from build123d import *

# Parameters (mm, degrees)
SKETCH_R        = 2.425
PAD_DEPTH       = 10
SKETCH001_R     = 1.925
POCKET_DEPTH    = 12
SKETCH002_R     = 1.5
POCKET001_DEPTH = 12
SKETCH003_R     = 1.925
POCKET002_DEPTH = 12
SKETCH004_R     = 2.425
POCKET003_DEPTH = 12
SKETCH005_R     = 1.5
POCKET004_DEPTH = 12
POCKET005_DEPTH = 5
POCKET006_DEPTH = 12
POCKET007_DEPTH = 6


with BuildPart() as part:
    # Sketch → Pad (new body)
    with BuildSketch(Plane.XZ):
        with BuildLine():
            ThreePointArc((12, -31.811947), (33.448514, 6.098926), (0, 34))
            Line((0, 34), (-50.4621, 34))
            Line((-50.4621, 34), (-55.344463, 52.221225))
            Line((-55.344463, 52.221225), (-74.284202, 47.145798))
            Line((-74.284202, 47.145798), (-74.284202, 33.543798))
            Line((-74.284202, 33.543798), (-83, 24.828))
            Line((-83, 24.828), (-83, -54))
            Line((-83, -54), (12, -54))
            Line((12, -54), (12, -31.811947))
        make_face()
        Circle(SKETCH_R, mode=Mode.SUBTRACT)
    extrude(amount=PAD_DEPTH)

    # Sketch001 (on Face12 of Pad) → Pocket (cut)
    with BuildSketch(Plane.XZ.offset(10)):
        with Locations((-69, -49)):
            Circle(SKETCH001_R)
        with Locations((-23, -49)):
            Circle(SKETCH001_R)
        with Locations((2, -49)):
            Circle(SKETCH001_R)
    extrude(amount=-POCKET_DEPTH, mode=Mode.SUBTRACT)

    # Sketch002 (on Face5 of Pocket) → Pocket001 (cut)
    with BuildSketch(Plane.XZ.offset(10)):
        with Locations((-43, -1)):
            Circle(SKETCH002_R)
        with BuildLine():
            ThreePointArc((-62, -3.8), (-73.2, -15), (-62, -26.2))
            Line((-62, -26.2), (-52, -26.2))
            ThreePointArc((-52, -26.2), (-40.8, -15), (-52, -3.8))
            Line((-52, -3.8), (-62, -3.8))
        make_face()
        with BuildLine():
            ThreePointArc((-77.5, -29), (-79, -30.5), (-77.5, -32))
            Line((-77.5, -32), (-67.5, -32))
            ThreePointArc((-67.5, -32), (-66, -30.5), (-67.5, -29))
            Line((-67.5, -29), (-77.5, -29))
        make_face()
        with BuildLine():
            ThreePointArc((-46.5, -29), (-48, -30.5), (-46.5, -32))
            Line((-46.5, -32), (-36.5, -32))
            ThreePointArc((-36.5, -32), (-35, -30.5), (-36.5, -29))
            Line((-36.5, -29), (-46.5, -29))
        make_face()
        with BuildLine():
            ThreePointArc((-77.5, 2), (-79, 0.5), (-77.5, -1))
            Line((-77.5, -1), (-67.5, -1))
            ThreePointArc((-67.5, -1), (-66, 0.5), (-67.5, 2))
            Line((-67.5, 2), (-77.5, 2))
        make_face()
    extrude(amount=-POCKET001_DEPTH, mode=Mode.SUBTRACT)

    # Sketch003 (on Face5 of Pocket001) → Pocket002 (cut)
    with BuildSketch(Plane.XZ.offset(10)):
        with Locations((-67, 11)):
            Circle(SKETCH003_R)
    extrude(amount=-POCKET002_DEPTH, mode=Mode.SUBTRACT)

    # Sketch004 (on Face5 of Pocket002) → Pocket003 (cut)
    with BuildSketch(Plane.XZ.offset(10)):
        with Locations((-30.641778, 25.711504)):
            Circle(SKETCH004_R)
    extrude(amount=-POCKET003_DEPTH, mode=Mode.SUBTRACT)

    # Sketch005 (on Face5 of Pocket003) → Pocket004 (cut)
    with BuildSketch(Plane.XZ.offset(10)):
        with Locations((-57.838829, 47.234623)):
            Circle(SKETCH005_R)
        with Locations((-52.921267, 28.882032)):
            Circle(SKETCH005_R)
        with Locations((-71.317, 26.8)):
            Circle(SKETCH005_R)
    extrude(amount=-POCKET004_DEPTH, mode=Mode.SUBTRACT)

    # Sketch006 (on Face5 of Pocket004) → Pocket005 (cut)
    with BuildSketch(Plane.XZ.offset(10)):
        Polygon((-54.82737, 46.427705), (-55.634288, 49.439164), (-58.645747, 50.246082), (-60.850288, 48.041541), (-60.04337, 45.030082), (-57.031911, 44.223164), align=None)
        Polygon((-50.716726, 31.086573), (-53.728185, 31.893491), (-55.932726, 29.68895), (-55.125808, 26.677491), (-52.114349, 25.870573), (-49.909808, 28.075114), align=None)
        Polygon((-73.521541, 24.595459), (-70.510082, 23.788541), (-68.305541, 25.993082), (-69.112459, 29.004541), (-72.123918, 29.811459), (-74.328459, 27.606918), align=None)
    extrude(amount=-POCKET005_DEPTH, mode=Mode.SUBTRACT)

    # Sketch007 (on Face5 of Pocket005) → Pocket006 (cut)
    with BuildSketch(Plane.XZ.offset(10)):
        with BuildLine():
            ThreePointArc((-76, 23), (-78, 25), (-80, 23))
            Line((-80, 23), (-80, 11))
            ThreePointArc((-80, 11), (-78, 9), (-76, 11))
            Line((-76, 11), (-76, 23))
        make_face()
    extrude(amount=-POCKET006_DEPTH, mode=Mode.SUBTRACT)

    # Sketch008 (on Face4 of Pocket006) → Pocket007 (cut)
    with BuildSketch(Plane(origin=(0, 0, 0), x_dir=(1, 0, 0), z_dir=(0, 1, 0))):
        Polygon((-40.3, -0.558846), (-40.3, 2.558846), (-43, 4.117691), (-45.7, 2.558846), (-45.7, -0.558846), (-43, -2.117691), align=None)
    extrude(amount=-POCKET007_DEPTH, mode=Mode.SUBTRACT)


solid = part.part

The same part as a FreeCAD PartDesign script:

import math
import FreeCAD as App
import Part
import Sketcher
from FreeCAD import Vector
Q = App.Units.Quantity

doc = App.newDocument("Part")
body = doc.addObject("PartDesign::Body", "Body")

sketch1 = doc.addObject("Sketcher::SketchObject", "Sketch")
body.addObject(sketch1)
sketch1.AttachmentSupport = (doc.XZ_Plane, [""])
sketch1.MapMode = "FlatFace"
sketch1.addGeometry([
    Part.ArcOfCircle(Part.Circle(Vector(0, 0, 0), Vector(0, 0, 1), 34), math.radians(-69), math.radians(90)),
    Part.LineSegment(Vector(0, 34, 0), Vector(-50.5, 34, 0)),
    Part.LineSegment(Vector(-50.5, 34, 0), Vector(-55.3, 52.2, 0)),
    Part.LineSegment(Vector(-55.3, 52.2, 0), Vector(-74.3, 47.1, 0)),
    Part.LineSegment(Vector(-74.3, 47.1, 0), Vector(-74.3, 33.5, 0)),
    Part.LineSegment(Vector(-74.3, 33.5, 0), Vector(-83, 24.8, 0)),
    Part.LineSegment(Vector(-83, 24.8, 0), Vector(-83, -54, 0)),
    Part.LineSegment(Vector(-83, -54, 0), Vector(12, -54, 0)),
    Part.LineSegment(Vector(12, -54, 0), Vector(12, -31.8, 0)),
    Part.Circle(Vector(0, 0, 0), Vector(0, 0, 1), 2.4),
], False)
sketch1.addConstraint([
    Sketcher.Constraint("Tangent", 0, 2, 1, 1),
    Sketcher.Constraint("Coincident", 1, 2, 2, 1),
    Sketcher.Constraint("Coincident", 2, 2, 3, 1),
    Sketcher.Constraint("Coincident", 3, 2, 4, 1),
    Sketcher.Constraint("Coincident", 4, 2, 5, 1),
    Sketcher.Constraint("Coincident", 5, 2, 6, 1),
    Sketcher.Constraint("Coincident", 6, 2, 7, 1),
    Sketcher.Constraint("Coincident", 7, 2, 8, 1),
    Sketcher.Constraint("Coincident", 8, 2, 0, 1),
    Sketcher.Constraint("Horizontal", 1),
    Sketcher.Constraint("Vertical", 4),
    Sketcher.Constraint("Vertical", 6),
    Sketcher.Constraint("Horizontal", 7),
    Sketcher.Constraint("Vertical", 8),
    Sketcher.Constraint("Coincident", 0, 3, -1, 1),
    Sketcher.Constraint("Coincident", 9, 3, -1, 1),
    Sketcher.Constraint("Radius", 0, Q("34 mm")),
    Sketcher.Constraint("Diameter", 9, Q("4.85 mm")),
    Sketcher.Constraint("DistanceX", 7, 1, 7, 2, Q("95 mm")),
    Sketcher.Constraint("Angle", 2, Q("105.000001 deg")),
    Sketcher.Constraint("Angle", 5, Q("-135 deg")),
    Sketcher.Constraint("DistanceX", 5, 2, -1, 1, Q("83 mm")),
    Sketcher.Constraint("DistanceY", 6, 2, -1, 1, Q("54 mm")),
    Sketcher.Constraint("DistanceY", 4, 2, 4, 1, Q("13.602 mm")),
    Sketcher.Constraint("DistanceY", 6, 2, 6, 1, Q("78.828 mm")),
    Sketcher.Constraint("Distance", 2, Q("18.864 mm")),
    Sketcher.Constraint("Distance", 3, Q("19.608 mm")),
    Sketcher.Constraint("Distance", 5, Q("12.326 mm")),
])
pad1 = doc.addObject("PartDesign::Pad", "Pad")
body.addObject(pad1)
pad1.Profile = sketch1
pad1.Length = 10

sketch2 = doc.addObject("Sketcher::SketchObject", "Sketch001")
body.addObject(sketch2)
sketch2.AttachmentSupport = (doc.XZ_Plane, [""])
sketch2.MapMode = "FlatFace"
sketch2.AttachmentOffset = App.Placement(Vector(0, 0, 10), App.Rotation())
sketch2.addGeometry([
    Part.Circle(Vector(-69, -49, 0), Vector(0, 0, 1), 1.9),
    Part.Circle(Vector(-23, -49, 0), Vector(0, 0, 1), 1.9),
    Part.Circle(Vector(2, -49, 0), Vector(0, 0, 1), 1.9),
], False)
sketch2.addConstraint([
    Sketcher.Constraint("Equal", 0, 1),
    Sketcher.Constraint("Equal", 1, 2),
    Sketcher.Constraint("Horizontal", 0, 3, 1, 3),
    Sketcher.Constraint("Horizontal", 1, 3, 2, 3),
    Sketcher.Constraint("Diameter", 0, Q("3.85 mm")),
    Sketcher.Constraint("DistanceX", 0, 3, -1, 1, Q("69 mm")),
    Sketcher.Constraint("DistanceY", 0, 3, -1, 1, Q("49 mm")),
    Sketcher.Constraint("DistanceX", 1, 3, -1, 1, Q("23 mm")),
    Sketcher.Constraint("DistanceX", -1, 1, 2, 3, Q("2 mm")),
])
pocket1 = doc.addObject("PartDesign::Pocket", "Pocket")
body.addObject(pocket1)
pocket1.Profile = sketch2
pocket1.Length = 12

sketch3 = doc.addObject("Sketcher::SketchObject", "Sketch002")
body.addObject(sketch3)
sketch3.AttachmentSupport = (doc.XZ_Plane, [""])
sketch3.MapMode = "FlatFace"
sketch3.AttachmentOffset = App.Placement(Vector(0, 0, 10), App.Rotation())
sketch3.addGeometry([
    Part.Circle(Vector(-43, -1, 0), Vector(0, 0, 1), 1.5),
    Part.ArcOfCircle(Part.Circle(Vector(-62, -15, 0), Vector(0, 0, 1), 11.2), math.radians(90), math.radians(270)),
    Part.LineSegment(Vector(-62, -26.2, 0), Vector(-52, -26.2, 0)),
    Part.ArcOfCircle(Part.Circle(Vector(-52, -15, 0), Vector(0, 0, 1), 11.2), math.radians(-90), math.radians(90)),
    Part.LineSegment(Vector(-52, -3.8, 0), Vector(-62, -3.8, 0)),
    Part.ArcOfCircle(Part.Circle(Vector(-77.5, -30.5, 0), Vector(0, 0, 1), 1.5), math.radians(90), math.radians(270)),
    Part.LineSegment(Vector(-77.5, -32, 0), Vector(-67.5, -32, 0)),
    Part.ArcOfCircle(Part.Circle(Vector(-67.5, -30.5, 0), Vector(0, 0, 1), 1.5), math.radians(-90), math.radians(90)),
    Part.LineSegment(Vector(-67.5, -29, 0), Vector(-77.5, -29, 0)),
    Part.ArcOfCircle(Part.Circle(Vector(-46.5, -30.5, 0), Vector(0, 0, 1), 1.5), math.radians(90), math.radians(270)),
    Part.LineSegment(Vector(-46.5, -32, 0), Vector(-36.5, -32, 0)),
    Part.ArcOfCircle(Part.Circle(Vector(-36.5, -30.5, 0), Vector(0, 0, 1), 1.5), math.radians(-90), math.radians(90)),
    Part.LineSegment(Vector(-36.5, -29, 0), Vector(-46.5, -29, 0)),
    Part.ArcOfCircle(Part.Circle(Vector(-77.5, 0.5, 0), Vector(0, 0, 1), 1.5), math.radians(90), math.radians(270)),
    Part.LineSegment(Vector(-77.5, -1, 0), Vector(-67.5, -1, 0)),
    Part.ArcOfCircle(Part.Circle(Vector(-67.5, 0.5, 0), Vector(0, 0, 1), 1.5), math.radians(-90), math.radians(90)),
    Part.LineSegment(Vector(-67.5, 2, 0), Vector(-77.5, 2, 0)),
], False)
sketch3.addConstraint([
    Sketcher.Constraint("Tangent", 1, 2, 2, 1),
    Sketcher.Constraint("Tangent", 2, 2, 3, 1),
    Sketcher.Constraint("Tangent", 3, 2, 4, 1),
    Sketcher.Constraint("Tangent", 4, 2, 1, 1),
    Sketcher.Constraint("Tangent", 5, 2, 6, 1),
    Sketcher.Constraint("Tangent", 6, 2, 7, 1),
    Sketcher.Constraint("Tangent", 7, 2, 8, 1),
    Sketcher.Constraint("Tangent", 8, 2, 5, 1),
    Sketcher.Constraint("Tangent", 9, 2, 10, 1),
    Sketcher.Constraint("Tangent", 10, 2, 11, 1),
    Sketcher.Constraint("Tangent", 11, 2, 12, 1),
    Sketcher.Constraint("Tangent", 12, 2, 9, 1),
    Sketcher.Constraint("Tangent", 13, 2, 14, 1),
    Sketcher.Constraint("Tangent", 14, 2, 15, 1),
    Sketcher.Constraint("Tangent", 15, 2, 16, 1),
    Sketcher.Constraint("Tangent", 16, 2, 13, 1),
    Sketcher.Constraint("Horizontal", 2),
    Sketcher.Constraint("Horizontal", 4),
    Sketcher.Constraint("Horizontal", 6),
    Sketcher.Constraint("Horizontal", 8),
    Sketcher.Constraint("Horizontal", 10),
    Sketcher.Constraint("Horizontal", 12),
    Sketcher.Constraint("Horizontal", 14),
    Sketcher.Constraint("Horizontal", 16),
    Sketcher.Constraint("Equal", 0, 5),
    Sketcher.Constraint("Equal", 7, 9),
    Sketcher.Constraint("Equal", 11, 13),
    Sketcher.Constraint("Horizontal", 7, 3, 9, 3),
    Sketcher.Constraint("Horizontal", 0, 3, 13, 2),
    Sketcher.Constraint("Vertical", 5, 3, 13, 3),
    Sketcher.Constraint("Vertical", 7, 3, 15, 3),
    Sketcher.Constraint("Equal", 4, 6),
    Sketcher.Constraint("Equal", 8, 10),
    Sketcher.Constraint("Diameter", 0, Q("3 mm")),
    Sketcher.Constraint("Radius", 1, Q("11.2 mm")),
    Sketcher.Constraint("DistanceX", 2, 1, 2, 2, Q("10 mm")),
    Sketcher.Constraint("DistanceX", 0, 3, -1, 1, Q("43 mm")),
    Sketcher.Constraint("DistanceY", 0, 3, -1, 1, Q("1 mm")),
    Sketcher.Constraint("DistanceX", 1, 3, -1, 1, Q("62 mm")),
    Sketcher.Constraint("DistanceY", 1, 3, -1, 1, Q("15 mm")),
    Sketcher.Constraint("DistanceY", 5, 2, -1, 1, Q("32 mm")),
    Sketcher.Constraint("DistanceX", 7, 3, 9, 3, Q("21 mm")),
    Sketcher.Constraint("DistanceX", 5, 3, -1, 1, Q("77.5 mm")),
])
pocket2 = doc.addObject("PartDesign::Pocket", "Pocket001")
body.addObject(pocket2)
pocket2.Profile = sketch3
pocket2.Length = 12

sketch4 = doc.addObject("Sketcher::SketchObject", "Sketch003")
body.addObject(sketch4)
sketch4.AttachmentSupport = (doc.XZ_Plane, [""])
sketch4.MapMode = "FlatFace"
sketch4.AttachmentOffset = App.Placement(Vector(0, 0, 10), App.Rotation())
sketch4.addGeometry(Part.Circle(Vector(-67, 11, 0), Vector(0, 0, 1), 1.9), False)
sketch4.addConstraint([
    Sketcher.Constraint("Diameter", 0, Q("3.85 mm")),
    Sketcher.Constraint("DistanceX", 0, 3, -1, 1, Q("67 mm")),
    Sketcher.Constraint("DistanceY", -1, 1, 0, 3, Q("11 mm")),
])
pocket3 = doc.addObject("PartDesign::Pocket", "Pocket002")
body.addObject(pocket3)
pocket3.Profile = sketch4
pocket3.Length = 12

sketch5 = doc.addObject("Sketcher::SketchObject", "Sketch004")
body.addObject(sketch5)
sketch5.AttachmentSupport = (doc.XZ_Plane, [""])
sketch5.MapMode = "FlatFace"
sketch5.AttachmentOffset = App.Placement(Vector(0, 0, 10), App.Rotation())
sketch5.addGeometry(Part.Circle(Vector(-30.6, 25.7, 0), Vector(0, 0, 1), 2.4), False)
sketch5.addConstraint([
    Sketcher.Constraint("Diameter", 0, Q("4.85 mm")),
    Sketcher.Constraint("DistanceX", 0, 3, -1, 1, Q("30.641778 mm")),
    Sketcher.Constraint("DistanceY", -1, 1, 0, 3, Q("25.711504 mm")),
])
pocket4 = doc.addObject("PartDesign::Pocket", "Pocket003")
body.addObject(pocket4)
pocket4.Profile = sketch5
pocket4.Length = 12

sketch6 = doc.addObject("Sketcher::SketchObject", "Sketch005")
body.addObject(sketch6)
sketch6.AttachmentSupport = (doc.XZ_Plane, [""])
sketch6.MapMode = "FlatFace"
sketch6.AttachmentOffset = App.Placement(Vector(0, 0, 10), App.Rotation())
sketch6.addGeometry([
    Part.Circle(Vector(-57.8, 47.2, 0), Vector(0, 0, 1), 1.5),
    Part.Circle(Vector(-52.9, 28.9, 0), Vector(0, 0, 1), 1.5),
    Part.Circle(Vector(-71.3, 26.8, 0), Vector(0, 0, 1), 1.5),
], False)
sketch6.addConstraint([
    Sketcher.Constraint("Equal", 0, 1),
    Sketcher.Constraint("Equal", 1, 2),
    Sketcher.Constraint("Diameter", 0, Q("3 mm")),
    Sketcher.Constraint("DistanceY", -1, 1, 2, 3, Q("26.8 mm")),
    Sketcher.Constraint("DistanceX", 2, 3, -1, 1, Q("71.317 mm")),
    Sketcher.Constraint("DistanceX", 0, 3, -1, 1, Q("57.838829 mm")),
    Sketcher.Constraint("DistanceY", -1, 1, 1, 3, Q("28.882032 mm")),
    Sketcher.Constraint("DistanceX", 0, 3, 1, 3, Q("4.917562 mm")),
    Sketcher.Constraint("DistanceY", 1, 3, 0, 3, Q("18.352591 mm")),
])
pocket5 = doc.addObject("PartDesign::Pocket", "Pocket004")
body.addObject(pocket5)
pocket5.Profile = sketch6
pocket5.Length = 12

sketch7 = doc.addObject("Sketcher::SketchObject", "Sketch006")
body.addObject(sketch7)
sketch7.AttachmentSupport = (doc.XZ_Plane, [""])
sketch7.MapMode = "FlatFace"
sketch7.AttachmentOffset = App.Placement(Vector(0, 0, 10), App.Rotation())
sketch7.addGeometry([
    Part.LineSegment(Vector(-54.8, 46.4, 0), Vector(-55.6, 49.4, 0)),
    Part.LineSegment(Vector(-55.6, 49.4, 0), Vector(-58.6, 50.2, 0)),
    Part.LineSegment(Vector(-58.6, 50.2, 0), Vector(-60.9, 48, 0)),
    Part.LineSegment(Vector(-60.9, 48, 0), Vector(-60, 45, 0)),
    Part.LineSegment(Vector(-60, 45, 0), Vector(-57, 44.2, 0)),
    Part.LineSegment(Vector(-57, 44.2, 0), Vector(-54.8, 46.4, 0)),
    Part.LineSegment(Vector(-50.7, 31.1, 0), Vector(-53.7, 31.9, 0)),
    Part.LineSegment(Vector(-53.7, 31.9, 0), Vector(-55.9, 29.7, 0)),
    Part.LineSegment(Vector(-55.9, 29.7, 0), Vector(-55.1, 26.7, 0)),
    Part.LineSegment(Vector(-55.1, 26.7, 0), Vector(-52.1, 25.9, 0)),
    Part.LineSegment(Vector(-52.1, 25.9, 0), Vector(-49.9, 28.1, 0)),
    Part.LineSegment(Vector(-49.9, 28.1, 0), Vector(-50.7, 31.1, 0)),
    Part.LineSegment(Vector(-73.5, 24.6, 0), Vector(-70.5, 23.8, 0)),
    Part.LineSegment(Vector(-70.5, 23.8, 0), Vector(-68.3, 26, 0)),
    Part.LineSegment(Vector(-68.3, 26, 0), Vector(-69.1, 29, 0)),
    Part.LineSegment(Vector(-69.1, 29, 0), Vector(-72.1, 29.8, 0)),
    Part.LineSegment(Vector(-72.1, 29.8, 0), Vector(-74.3, 27.6, 0)),
    Part.LineSegment(Vector(-74.3, 27.6, 0), Vector(-73.5, 24.6, 0)),
], False)
sketch7.addConstraint([
    Sketcher.Constraint("Coincident", 0, 2, 1, 1),
    Sketcher.Constraint("Coincident", 1, 2, 2, 1),
    Sketcher.Constraint("Coincident", 2, 2, 3, 1),
    Sketcher.Constraint("Coincident", 3, 2, 4, 1),
    Sketcher.Constraint("Coincident", 4, 2, 5, 1),
    Sketcher.Constraint("Coincident", 5, 2, 0, 1),
    Sketcher.Constraint("Coincident", 6, 2, 7, 1),
    Sketcher.Constraint("Coincident", 7, 2, 8, 1),
    Sketcher.Constraint("Coincident", 8, 2, 9, 1),
    Sketcher.Constraint("Coincident", 9, 2, 10, 1),
    Sketcher.Constraint("Coincident", 10, 2, 11, 1),
    Sketcher.Constraint("Coincident", 11, 2, 6, 1),
    Sketcher.Constraint("Coincident", 12, 2, 13, 1),
    Sketcher.Constraint("Coincident", 13, 2, 14, 1),
    Sketcher.Constraint("Coincident", 14, 2, 15, 1),
    Sketcher.Constraint("Coincident", 15, 2, 16, 1),
    Sketcher.Constraint("Coincident", 16, 2, 17, 1),
    Sketcher.Constraint("Coincident", 17, 2, 12, 1),
    Sketcher.Constraint("Parallel", 0, 3),
    Sketcher.Constraint("Parallel", 1, 4),
    Sketcher.Constraint("Parallel", 2, 5),
    Sketcher.Constraint("Parallel", 4, 6),
    Sketcher.Constraint("Parallel", 5, 7),
    Sketcher.Constraint("Parallel", 3, 8),
    Sketcher.Constraint("Parallel", 6, 9),
    Sketcher.Constraint("Parallel", 7, 10),
    Sketcher.Constraint("Parallel", 8, 11),
    Sketcher.Constraint("Parallel", 9, 12),
    Sketcher.Constraint("Parallel", 10, 13),
    Sketcher.Constraint("Parallel", 11, 14),
    Sketcher.Constraint("Parallel", 12, 15),
    Sketcher.Constraint("Parallel", 13, 16),
    Sketcher.Constraint("Parallel", 14, 17),
    Sketcher.Constraint("Equal", 0, 1),
    Sketcher.Constraint("Equal", 1, 2),
    Sketcher.Constraint("Equal", 2, 3),
    Sketcher.Constraint("Equal", 5, 6),
    Sketcher.Constraint("Equal", 6, 7),
    Sketcher.Constraint("Equal", 7, 8),
    Sketcher.Constraint("Equal", 8, 9),
    Sketcher.Constraint("Equal", 11, 12),
    Sketcher.Constraint("Equal", 12, 13),
    Sketcher.Constraint("Equal", 13, 14),
    Sketcher.Constraint("Equal", 14, 15),
    Sketcher.Constraint("Angle", 0, Q("105 deg")),
    Sketcher.Constraint("Angle", 1, Q("165 deg")),
    Sketcher.Constraint("Angle", 2, Q("-135 deg")),
    Sketcher.Constraint("DistanceX", 2, 2, 0, 2, Q("5.216 mm")),
    Sketcher.Constraint("DistanceY", -1, 1, 2, 2, Q("48.041541 mm")),
    Sketcher.Constraint("DistanceX", 3, 2, -1, 1, Q("60.04337 mm")),
    Sketcher.Constraint("DistanceY", -1, 1, 6, 2, Q("31.893491 mm")),
    Sketcher.Constraint("DistanceX", 9, 2, -1, 1, Q("52.114349 mm")),
    Sketcher.Constraint("DistanceX", 12, 2, -1, 1, Q("70.510082 mm")),
    Sketcher.Constraint("DistanceY", -1, 1, 12, 2, Q("23.788541 mm")),
])
pocket6 = doc.addObject("PartDesign::Pocket", "Pocket005")
body.addObject(pocket6)
pocket6.Profile = sketch7
pocket6.Length = 5

sketch8 = doc.addObject("Sketcher::SketchObject", "Sketch007")
body.addObject(sketch8)
sketch8.AttachmentSupport = (doc.XZ_Plane, [""])
sketch8.MapMode = "FlatFace"
sketch8.AttachmentOffset = App.Placement(Vector(0, 0, 10), App.Rotation())
sketch8.addGeometry([
    Part.ArcOfCircle(Part.Circle(Vector(-78, 23, 0), Vector(0, 0, 1), 2), math.radians(0), math.radians(180)),
    Part.LineSegment(Vector(-80, 23, 0), Vector(-80, 11, 0)),
    Part.ArcOfCircle(Part.Circle(Vector(-78, 11, 0), Vector(0, 0, 1), 2), math.radians(180), math.radians(360)),
    Part.LineSegment(Vector(-76, 11, 0), Vector(-76, 23, 0)),
], False)
sketch8.addConstraint([
    Sketcher.Constraint("Tangent", 0, 2, 1, 1),
    Sketcher.Constraint("Tangent", 1, 2, 2, 1),
    Sketcher.Constraint("Tangent", 2, 2, 3, 1),
    Sketcher.Constraint("Tangent", 3, 2, 0, 1),
    Sketcher.Constraint("Vertical", 1),
    Sketcher.Constraint("Vertical", 3),
    Sketcher.Constraint("Radius", 0, Q("2 mm")),
    Sketcher.Constraint("DistanceY", 1, 2, 1, 1, Q("12 mm")),
    Sketcher.Constraint("DistanceX", 0, 3, -1, 1, Q("78 mm")),
    Sketcher.Constraint("DistanceY", -1, 1, 0, 3, Q("23 mm")),
])
pocket7 = doc.addObject("PartDesign::Pocket", "Pocket006")
body.addObject(pocket7)
pocket7.Profile = sketch8
pocket7.Length = 12

sketch9 = doc.addObject("Sketcher::SketchObject", "Sketch008")
body.addObject(sketch9)
sketch9.AttachmentSupport = (doc.XZ_Plane, [""])
sketch9.MapMode = "FlatFace"
sketch9.addGeometry([
    Part.LineSegment(Vector(-40.3, 0.6, 0), Vector(-40.3, -2.6, 0)),
    Part.LineSegment(Vector(-40.3, -2.6, 0), Vector(-43, -4.1, 0)),
    Part.LineSegment(Vector(-43, -4.1, 0), Vector(-45.7, -2.6, 0)),
    Part.LineSegment(Vector(-45.7, -2.6, 0), Vector(-45.7, 0.6, 0)),
    Part.LineSegment(Vector(-45.7, 0.6, 0), Vector(-43, 2.1, 0)),
    Part.LineSegment(Vector(-43, 2.1, 0), Vector(-40.3, 0.6, 0)),
], False)
sketch9.addConstraint([
    Sketcher.Constraint("Coincident", 0, 2, 1, 1),
    Sketcher.Constraint("Coincident", 1, 2, 2, 1),
    Sketcher.Constraint("Coincident", 2, 2, 3, 1),
    Sketcher.Constraint("Coincident", 3, 2, 4, 1),
    Sketcher.Constraint("Coincident", 4, 2, 5, 1),
    Sketcher.Constraint("Coincident", 5, 2, 0, 1),
    Sketcher.Constraint("Vertical", 0),
    Sketcher.Constraint("Vertical", 3),
    Sketcher.Constraint("Parallel", 1, 4),
    Sketcher.Constraint("Parallel", 2, 5),
    Sketcher.Constraint("Horizontal", 0, 2, 2, 2),
    Sketcher.Constraint("Horizontal", 3, 2, 5, 2),
    Sketcher.Constraint("Vertical", 1, 2, 4, 2),
    Sketcher.Constraint("Angle", 1, Q("-150.000012 deg")),
    Sketcher.Constraint("DistanceX", 1, 2, -1, 1, Q("43 mm")),
    Sketcher.Constraint("DistanceX", 0, 2, -1, 1, Q("40.3 mm")),
    Sketcher.Constraint("DistanceY", 0, 2, 0, 1, Q("3.117692 mm")),
    Sketcher.Constraint("DistanceY", 1, 2, -1, 1, Q("4.117691 mm")),
])
pocket8 = doc.addObject("PartDesign::Pocket", "Pocket007")
body.addObject(pocket8)
pocket8.Profile = sketch9
pocket8.Length = 6
pocket8.Reversed = True

doc.recompute()
